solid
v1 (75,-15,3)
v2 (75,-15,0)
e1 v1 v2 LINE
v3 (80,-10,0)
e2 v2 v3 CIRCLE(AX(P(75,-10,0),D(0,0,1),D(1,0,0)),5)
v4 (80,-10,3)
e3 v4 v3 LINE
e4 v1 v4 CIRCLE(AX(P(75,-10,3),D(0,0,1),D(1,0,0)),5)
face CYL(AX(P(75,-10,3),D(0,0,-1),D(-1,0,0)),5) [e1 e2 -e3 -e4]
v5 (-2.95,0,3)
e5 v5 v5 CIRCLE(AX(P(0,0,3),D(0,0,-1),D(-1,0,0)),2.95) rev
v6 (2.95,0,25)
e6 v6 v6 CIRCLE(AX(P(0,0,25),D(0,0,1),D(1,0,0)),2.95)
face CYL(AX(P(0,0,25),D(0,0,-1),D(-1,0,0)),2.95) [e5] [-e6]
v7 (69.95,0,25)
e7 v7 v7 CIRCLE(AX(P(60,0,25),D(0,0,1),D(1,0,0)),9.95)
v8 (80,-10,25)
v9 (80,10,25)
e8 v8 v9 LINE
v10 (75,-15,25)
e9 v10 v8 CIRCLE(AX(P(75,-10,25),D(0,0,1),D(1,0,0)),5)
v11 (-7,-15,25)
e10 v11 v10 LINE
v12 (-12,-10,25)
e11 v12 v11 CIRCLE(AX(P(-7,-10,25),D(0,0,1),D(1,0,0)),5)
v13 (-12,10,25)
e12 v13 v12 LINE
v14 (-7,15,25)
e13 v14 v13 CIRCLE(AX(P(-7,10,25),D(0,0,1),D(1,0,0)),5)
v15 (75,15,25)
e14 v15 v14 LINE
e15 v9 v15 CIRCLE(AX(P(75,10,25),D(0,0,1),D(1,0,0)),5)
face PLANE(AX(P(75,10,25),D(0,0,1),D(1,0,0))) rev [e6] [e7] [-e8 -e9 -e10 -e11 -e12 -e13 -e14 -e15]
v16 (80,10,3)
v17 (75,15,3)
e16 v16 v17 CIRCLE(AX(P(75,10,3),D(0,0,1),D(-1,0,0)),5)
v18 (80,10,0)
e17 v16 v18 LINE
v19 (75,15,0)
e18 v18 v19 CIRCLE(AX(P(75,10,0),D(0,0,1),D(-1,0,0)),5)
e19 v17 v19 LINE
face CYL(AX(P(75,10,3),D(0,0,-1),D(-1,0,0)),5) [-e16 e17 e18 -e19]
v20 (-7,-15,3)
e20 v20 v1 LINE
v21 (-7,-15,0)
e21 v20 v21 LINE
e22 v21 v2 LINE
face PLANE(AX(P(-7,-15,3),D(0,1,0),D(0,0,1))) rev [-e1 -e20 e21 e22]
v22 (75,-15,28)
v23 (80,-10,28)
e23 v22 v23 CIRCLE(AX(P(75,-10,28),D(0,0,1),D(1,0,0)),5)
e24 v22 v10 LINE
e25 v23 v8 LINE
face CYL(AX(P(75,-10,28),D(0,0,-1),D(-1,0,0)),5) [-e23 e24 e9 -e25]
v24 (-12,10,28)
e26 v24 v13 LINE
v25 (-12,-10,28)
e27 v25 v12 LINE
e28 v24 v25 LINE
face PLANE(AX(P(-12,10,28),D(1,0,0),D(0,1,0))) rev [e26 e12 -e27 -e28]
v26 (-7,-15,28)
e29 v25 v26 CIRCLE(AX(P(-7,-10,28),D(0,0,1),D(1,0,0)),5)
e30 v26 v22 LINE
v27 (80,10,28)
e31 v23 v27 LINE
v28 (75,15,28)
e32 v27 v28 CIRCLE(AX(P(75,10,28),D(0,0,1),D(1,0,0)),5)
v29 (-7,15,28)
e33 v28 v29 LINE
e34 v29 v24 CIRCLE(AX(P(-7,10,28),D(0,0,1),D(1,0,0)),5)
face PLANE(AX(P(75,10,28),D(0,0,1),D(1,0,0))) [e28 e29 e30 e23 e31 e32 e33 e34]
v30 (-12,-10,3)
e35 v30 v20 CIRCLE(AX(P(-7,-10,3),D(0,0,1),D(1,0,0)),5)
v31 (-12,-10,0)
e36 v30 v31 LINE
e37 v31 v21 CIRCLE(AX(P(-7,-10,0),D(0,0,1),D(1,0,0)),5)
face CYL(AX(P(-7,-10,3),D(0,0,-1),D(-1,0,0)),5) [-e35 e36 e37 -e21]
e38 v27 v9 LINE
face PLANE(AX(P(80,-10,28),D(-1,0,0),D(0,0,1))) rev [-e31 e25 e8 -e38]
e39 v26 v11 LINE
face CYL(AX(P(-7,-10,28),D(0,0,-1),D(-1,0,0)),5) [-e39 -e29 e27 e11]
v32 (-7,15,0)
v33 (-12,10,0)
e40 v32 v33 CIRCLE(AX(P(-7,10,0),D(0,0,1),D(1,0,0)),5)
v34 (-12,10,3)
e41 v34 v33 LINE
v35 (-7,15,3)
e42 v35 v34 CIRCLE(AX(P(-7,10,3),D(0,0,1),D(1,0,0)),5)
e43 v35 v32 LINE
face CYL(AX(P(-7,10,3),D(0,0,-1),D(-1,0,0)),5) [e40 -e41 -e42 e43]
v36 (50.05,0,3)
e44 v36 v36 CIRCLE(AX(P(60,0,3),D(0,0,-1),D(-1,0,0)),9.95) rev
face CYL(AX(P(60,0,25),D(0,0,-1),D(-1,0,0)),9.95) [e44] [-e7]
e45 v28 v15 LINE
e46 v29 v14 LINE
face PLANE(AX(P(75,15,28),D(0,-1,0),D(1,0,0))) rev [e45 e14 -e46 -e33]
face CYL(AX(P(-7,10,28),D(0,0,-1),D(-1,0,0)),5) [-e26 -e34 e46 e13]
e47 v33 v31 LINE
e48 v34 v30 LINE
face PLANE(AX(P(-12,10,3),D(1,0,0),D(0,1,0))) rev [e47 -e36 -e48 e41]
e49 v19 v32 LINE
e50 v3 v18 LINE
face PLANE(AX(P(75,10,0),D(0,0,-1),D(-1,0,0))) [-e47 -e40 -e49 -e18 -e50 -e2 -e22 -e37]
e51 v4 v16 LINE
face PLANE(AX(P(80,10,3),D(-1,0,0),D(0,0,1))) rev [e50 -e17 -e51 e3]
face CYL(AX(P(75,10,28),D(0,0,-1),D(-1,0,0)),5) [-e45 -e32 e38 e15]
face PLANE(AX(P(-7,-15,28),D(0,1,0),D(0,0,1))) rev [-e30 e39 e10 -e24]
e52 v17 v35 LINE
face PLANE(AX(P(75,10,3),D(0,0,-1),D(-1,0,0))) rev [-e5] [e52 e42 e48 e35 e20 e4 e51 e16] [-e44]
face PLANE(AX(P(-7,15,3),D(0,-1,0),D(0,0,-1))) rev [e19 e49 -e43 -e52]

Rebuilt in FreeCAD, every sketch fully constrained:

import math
import FreeCAD as App
import Part
import Sketcher
from FreeCAD import Vector

doc = App.newDocument("Part")
body = doc.addObject("PartDesign::Body", "Body")

# Sketch on XY plane
sketch1 = body.newObject("Sketcher::SketchObject", "Sketch")
sketch1.AttachmentSupport = (doc.getObject("XY_Plane"), [""])
sketch1.MapMode = "FlatFace"
sketch1.addGeometry(Part.LineSegment(Vector(75, 15, 0), Vector(-7, 15, 0)), False)
sketch1.addGeometry(Part.ArcOfCircle(Part.Circle(Vector(-7, 10, 0), Vector(0, 0, 1), 5), math.radians(90), math.radians(180)), False)
sketch1.addGeometry(Part.LineSegment(Vector(-12, 10, 0), Vector(-12, -10, 0)), False)
sketch1.addGeometry(Part.ArcOfCircle(Part.Circle(Vector(-7, -10, 0), Vector(0, 0, 1), 5), math.radians(180), math.radians(270)), False)
sketch1.addGeometry(Part.LineSegment(Vector(-7, -15, 0), Vector(75, -15, 0)), False)
sketch1.addGeometry(Part.ArcOfCircle(Part.Circle(Vector(75, -10, 0), Vector(0, 0, 1), 5), math.radians(-90), math.radians(0)), False)
sketch1.addGeometry(Part.LineSegment(Vector(80, -10, 0), Vector(80, 10, 0)), False)
sketch1.addGeometry(Part.ArcOfCircle(Part.Circle(Vector(75, 10, 0), Vector(0, 0, 1), 5), math.radians(0), math.radians(90)), False)
sketch1.addConstraint(Sketcher.Constraint("Tangent", 0, 2, 1, 1))
sketch1.addConstraint(Sketcher.Constraint("Tangent", 1, 2, 2, 1))
sketch1.addConstraint(Sketcher.Constraint("Tangent", 2, 2, 3, 1))
sketch1.addConstraint(Sketcher.Constraint("Tangent", 3, 2, 4, 1))
sketch1.addConstraint(Sketcher.Constraint("Tangent", 4, 2, 5, 1))
sketch1.addConstraint(Sketcher.Constraint("Tangent", 5, 2, 6, 1))
sketch1.addConstraint(Sketcher.Constraint("Tangent", 6, 2, 7, 1))
sketch1.addConstraint(Sketcher.Constraint("Tangent", 7, 2, 0, 1))
sketch1.addConstraint(Sketcher.Constraint("Horizontal", 0))
sketch1.addConstraint(Sketcher.Constraint("Vertical", 2))
sketch1.addConstraint(Sketcher.Constraint("Horizontal", 4))
sketch1.addConstraint(Sketcher.Constraint("Vertical", 6))
sketch1.addConstraint(Sketcher.Constraint("Equal", 1, 3))
sketch1.addConstraint(Sketcher.Constraint("Equal", 3, 5))
sketch1.addConstraint(Sketcher.Constraint("Equal", 5, 7))
sketch1.addConstraint(Sketcher.Constraint("Radius", 1, 5.0))
sketch1.addConstraint(Sketcher.Constraint("DistanceX", 0, 2, 0, 1, 82.0))
sketch1.addConstraint(Sketcher.Constraint("DistanceY", 2, 2, 2, 1, 20.0))
sketch1.addConstraint(Sketcher.Constraint("DistanceX", 1, 3, -1, 1, 7.0))
sketch1.addConstraint(Sketcher.Constraint("DistanceY", -1, 1, 1, 3, 10.0))
pad1 = body.newObject("PartDesign::Pad", "Pad")
pad1.Profile = sketch1
pad1.Length = 3

# Sketch on XY plane
sketch2 = body.newObject("Sketcher::SketchObject", "Sketch001")
sketch2.AttachmentSupport = (doc.getObject("XY_Plane"), [""])
sketch2.MapMode = "FlatFace"
sketch2.AttachmentOffset = App.Placement(Vector(0, 0, 3), App.Rotation())
sketch2.addGeometry(Part.Circle(Vector(0, 0, 0), Vector(0, 0, 1), 3), False)
sketch2.addGeometry(Part.Circle(Vector(60, 0, 0), Vector(0, 0, 1), 9.9), False)
sketch2.addConstraint(Sketcher.Constraint("Coincident", 0, 3, -1, 1))
sketch2.addConstraint(Sketcher.Constraint("PointOnObject", 1, 3, -1))
sketch2.addConstraint(Sketcher.Constraint("Diameter", 0, 5.9))
sketch2.addConstraint(Sketcher.Constraint("Diameter", 1, 19.9))
sketch2.addConstraint(Sketcher.Constraint("DistanceX", -1, 1, 1, 3, 60.0))
pad2 = body.newObject("PartDesign::Pad", "Pad001")
pad2.Profile = sketch2
pad2.Length = 22

# Sketch on XY plane
sketch3 = body.newObject("Sketcher::SketchObject", "Sketch002")
sketch3.AttachmentSupport = (doc.getObject("XY_Plane"), [""])
sketch3.MapMode = "FlatFace"
sketch3.AttachmentOffset = App.Placement(Vector(0, 0, 25), App.Rotation())
sketch3.addGeometry(Part.LineSegment(Vector(75, 15, 0), Vector(-7, 15, 0)), False)
sketch3.addGeometry(Part.ArcOfCircle(Part.Circle(Vector(-7, 10, 0), Vector(0, 0, 1), 5), math.radians(90), math.radians(180)), False)
sketch3.addGeometry(Part.LineSegment(Vector(-12, 10, 0), Vector(-12, -10, 0)), False)
sketch3.addGeometry(Part.ArcOfCircle(Part.Circle(Vector(-7, -10, 0), Vector(0, 0, 1), 5), math.radians(180), math.radians(270)), False)
sketch3.addGeometry(Part.LineSegment(Vector(-7, -15, 0), Vector(75, -15, 0)), False)
sketch3.addGeometry(Part.ArcOfCircle(Part.Circle(Vector(75, -10, 0), Vector(0, 0, 1), 5), math.radians(-90), math.radians(0)), False)
sketch3.addGeometry(Part.LineSegment(Vector(80, -10, 0), Vector(80, 10, 0)), False)
sketch3.addGeometry(Part.ArcOfCircle(Part.Circle(Vector(75, 10, 0), Vector(0, 0, 1), 5), math.radians(0), math.radians(90)), False)
sketch3.addConstraint(Sketcher.Constraint("Tangent", 0, 2, 1, 1))
sketch3.addConstraint(Sketcher.Constraint("Tangent", 1, 2, 2, 1))
sketch3.addConstraint(Sketcher.Constraint("Tangent", 2, 2, 3, 1))
sketch3.addConstraint(Sketcher.Constraint("Tangent", 3, 2, 4, 1))
sketch3.addConstraint(Sketcher.Constraint("Tangent", 4, 2, 5, 1))
sketch3.addConstraint(Sketcher.Constraint("Tangent", 5, 2, 6, 1))
sketch3.addConstraint(Sketcher.Constraint("Tangent", 6, 2, 7, 1))
sketch3.addConstraint(Sketcher.Constraint("Tangent", 7, 2, 0, 1))
sketch3.addConstraint(Sketcher.Constraint("Horizontal", 0))
sketch3.addConstraint(Sketcher.Constraint("Vertical", 2))
sketch3.addConstraint(Sketcher.Constraint("Horizontal", 4))
sketch3.addConstraint(Sketcher.Constraint("Vertical", 6))
sketch3.addConstraint(Sketcher.Constraint("Equal", 1, 3))
sketch3.addConstraint(Sketcher.Constraint("Equal", 3, 5))
sketch3.addConstraint(Sketcher.Constraint("Equal", 5, 7))
sketch3.addConstraint(Sketcher.Constraint("Radius", 1, 5.0))
sketch3.addConstraint(Sketcher.Constraint("DistanceX", 0, 2, 0, 1, 82.0))
sketch3.addConstraint(Sketcher.Constraint("DistanceY", 2, 2, 2, 1, 20.0))
sketch3.addConstraint(Sketcher.Constraint("DistanceX", 1, 3, -1, 1, 7.0))
sketch3.addConstraint(Sketcher.Constraint("DistanceY", -1, 1, 1, 3, 10.0))
pad3 = body.newObject("PartDesign::Pad", "Pad002")
pad3.Profile = sketch3
pad3.Length = 3

doc.recompute()
